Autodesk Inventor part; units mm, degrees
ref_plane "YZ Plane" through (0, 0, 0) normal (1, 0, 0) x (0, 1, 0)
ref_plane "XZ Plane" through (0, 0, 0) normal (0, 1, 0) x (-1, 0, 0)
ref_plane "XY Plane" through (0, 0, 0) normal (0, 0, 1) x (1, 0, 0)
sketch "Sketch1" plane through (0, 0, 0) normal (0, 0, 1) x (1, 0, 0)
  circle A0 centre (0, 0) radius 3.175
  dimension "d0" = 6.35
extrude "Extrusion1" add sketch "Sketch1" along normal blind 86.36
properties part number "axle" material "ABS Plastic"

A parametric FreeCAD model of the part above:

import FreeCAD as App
import Part
import Sketcher
Q = App.Units.Quantity

doc = App.newDocument("Part")
body = doc.addObject("PartDesign::Body", "Body")

# Sketch on XY plane
sketch1 = body.newObject("Sketcher::SketchObject", "Sketch")
sketch1.AttachmentSupport = (doc.getObject("XY_Plane"), [""])
sketch1.MapMode = "FlatFace"
sketch1.addGeometry(Part.Circle(App.Vector(0, 0, 0), App.Vector(0, 0, 1), 3.2), False)
sketch1.addConstraint(Sketcher.Constraint("Coincident", 0, 3, -1, 1))
sketch1.addConstraint(Sketcher.Constraint("Diameter", 0, Q("0.25 in")))
pad1 = body.newObject("PartDesign::Pad", "Pad")
pad1.Profile = sketch1
pad1.Length = Q("3.4 in")

doc.recompute()
